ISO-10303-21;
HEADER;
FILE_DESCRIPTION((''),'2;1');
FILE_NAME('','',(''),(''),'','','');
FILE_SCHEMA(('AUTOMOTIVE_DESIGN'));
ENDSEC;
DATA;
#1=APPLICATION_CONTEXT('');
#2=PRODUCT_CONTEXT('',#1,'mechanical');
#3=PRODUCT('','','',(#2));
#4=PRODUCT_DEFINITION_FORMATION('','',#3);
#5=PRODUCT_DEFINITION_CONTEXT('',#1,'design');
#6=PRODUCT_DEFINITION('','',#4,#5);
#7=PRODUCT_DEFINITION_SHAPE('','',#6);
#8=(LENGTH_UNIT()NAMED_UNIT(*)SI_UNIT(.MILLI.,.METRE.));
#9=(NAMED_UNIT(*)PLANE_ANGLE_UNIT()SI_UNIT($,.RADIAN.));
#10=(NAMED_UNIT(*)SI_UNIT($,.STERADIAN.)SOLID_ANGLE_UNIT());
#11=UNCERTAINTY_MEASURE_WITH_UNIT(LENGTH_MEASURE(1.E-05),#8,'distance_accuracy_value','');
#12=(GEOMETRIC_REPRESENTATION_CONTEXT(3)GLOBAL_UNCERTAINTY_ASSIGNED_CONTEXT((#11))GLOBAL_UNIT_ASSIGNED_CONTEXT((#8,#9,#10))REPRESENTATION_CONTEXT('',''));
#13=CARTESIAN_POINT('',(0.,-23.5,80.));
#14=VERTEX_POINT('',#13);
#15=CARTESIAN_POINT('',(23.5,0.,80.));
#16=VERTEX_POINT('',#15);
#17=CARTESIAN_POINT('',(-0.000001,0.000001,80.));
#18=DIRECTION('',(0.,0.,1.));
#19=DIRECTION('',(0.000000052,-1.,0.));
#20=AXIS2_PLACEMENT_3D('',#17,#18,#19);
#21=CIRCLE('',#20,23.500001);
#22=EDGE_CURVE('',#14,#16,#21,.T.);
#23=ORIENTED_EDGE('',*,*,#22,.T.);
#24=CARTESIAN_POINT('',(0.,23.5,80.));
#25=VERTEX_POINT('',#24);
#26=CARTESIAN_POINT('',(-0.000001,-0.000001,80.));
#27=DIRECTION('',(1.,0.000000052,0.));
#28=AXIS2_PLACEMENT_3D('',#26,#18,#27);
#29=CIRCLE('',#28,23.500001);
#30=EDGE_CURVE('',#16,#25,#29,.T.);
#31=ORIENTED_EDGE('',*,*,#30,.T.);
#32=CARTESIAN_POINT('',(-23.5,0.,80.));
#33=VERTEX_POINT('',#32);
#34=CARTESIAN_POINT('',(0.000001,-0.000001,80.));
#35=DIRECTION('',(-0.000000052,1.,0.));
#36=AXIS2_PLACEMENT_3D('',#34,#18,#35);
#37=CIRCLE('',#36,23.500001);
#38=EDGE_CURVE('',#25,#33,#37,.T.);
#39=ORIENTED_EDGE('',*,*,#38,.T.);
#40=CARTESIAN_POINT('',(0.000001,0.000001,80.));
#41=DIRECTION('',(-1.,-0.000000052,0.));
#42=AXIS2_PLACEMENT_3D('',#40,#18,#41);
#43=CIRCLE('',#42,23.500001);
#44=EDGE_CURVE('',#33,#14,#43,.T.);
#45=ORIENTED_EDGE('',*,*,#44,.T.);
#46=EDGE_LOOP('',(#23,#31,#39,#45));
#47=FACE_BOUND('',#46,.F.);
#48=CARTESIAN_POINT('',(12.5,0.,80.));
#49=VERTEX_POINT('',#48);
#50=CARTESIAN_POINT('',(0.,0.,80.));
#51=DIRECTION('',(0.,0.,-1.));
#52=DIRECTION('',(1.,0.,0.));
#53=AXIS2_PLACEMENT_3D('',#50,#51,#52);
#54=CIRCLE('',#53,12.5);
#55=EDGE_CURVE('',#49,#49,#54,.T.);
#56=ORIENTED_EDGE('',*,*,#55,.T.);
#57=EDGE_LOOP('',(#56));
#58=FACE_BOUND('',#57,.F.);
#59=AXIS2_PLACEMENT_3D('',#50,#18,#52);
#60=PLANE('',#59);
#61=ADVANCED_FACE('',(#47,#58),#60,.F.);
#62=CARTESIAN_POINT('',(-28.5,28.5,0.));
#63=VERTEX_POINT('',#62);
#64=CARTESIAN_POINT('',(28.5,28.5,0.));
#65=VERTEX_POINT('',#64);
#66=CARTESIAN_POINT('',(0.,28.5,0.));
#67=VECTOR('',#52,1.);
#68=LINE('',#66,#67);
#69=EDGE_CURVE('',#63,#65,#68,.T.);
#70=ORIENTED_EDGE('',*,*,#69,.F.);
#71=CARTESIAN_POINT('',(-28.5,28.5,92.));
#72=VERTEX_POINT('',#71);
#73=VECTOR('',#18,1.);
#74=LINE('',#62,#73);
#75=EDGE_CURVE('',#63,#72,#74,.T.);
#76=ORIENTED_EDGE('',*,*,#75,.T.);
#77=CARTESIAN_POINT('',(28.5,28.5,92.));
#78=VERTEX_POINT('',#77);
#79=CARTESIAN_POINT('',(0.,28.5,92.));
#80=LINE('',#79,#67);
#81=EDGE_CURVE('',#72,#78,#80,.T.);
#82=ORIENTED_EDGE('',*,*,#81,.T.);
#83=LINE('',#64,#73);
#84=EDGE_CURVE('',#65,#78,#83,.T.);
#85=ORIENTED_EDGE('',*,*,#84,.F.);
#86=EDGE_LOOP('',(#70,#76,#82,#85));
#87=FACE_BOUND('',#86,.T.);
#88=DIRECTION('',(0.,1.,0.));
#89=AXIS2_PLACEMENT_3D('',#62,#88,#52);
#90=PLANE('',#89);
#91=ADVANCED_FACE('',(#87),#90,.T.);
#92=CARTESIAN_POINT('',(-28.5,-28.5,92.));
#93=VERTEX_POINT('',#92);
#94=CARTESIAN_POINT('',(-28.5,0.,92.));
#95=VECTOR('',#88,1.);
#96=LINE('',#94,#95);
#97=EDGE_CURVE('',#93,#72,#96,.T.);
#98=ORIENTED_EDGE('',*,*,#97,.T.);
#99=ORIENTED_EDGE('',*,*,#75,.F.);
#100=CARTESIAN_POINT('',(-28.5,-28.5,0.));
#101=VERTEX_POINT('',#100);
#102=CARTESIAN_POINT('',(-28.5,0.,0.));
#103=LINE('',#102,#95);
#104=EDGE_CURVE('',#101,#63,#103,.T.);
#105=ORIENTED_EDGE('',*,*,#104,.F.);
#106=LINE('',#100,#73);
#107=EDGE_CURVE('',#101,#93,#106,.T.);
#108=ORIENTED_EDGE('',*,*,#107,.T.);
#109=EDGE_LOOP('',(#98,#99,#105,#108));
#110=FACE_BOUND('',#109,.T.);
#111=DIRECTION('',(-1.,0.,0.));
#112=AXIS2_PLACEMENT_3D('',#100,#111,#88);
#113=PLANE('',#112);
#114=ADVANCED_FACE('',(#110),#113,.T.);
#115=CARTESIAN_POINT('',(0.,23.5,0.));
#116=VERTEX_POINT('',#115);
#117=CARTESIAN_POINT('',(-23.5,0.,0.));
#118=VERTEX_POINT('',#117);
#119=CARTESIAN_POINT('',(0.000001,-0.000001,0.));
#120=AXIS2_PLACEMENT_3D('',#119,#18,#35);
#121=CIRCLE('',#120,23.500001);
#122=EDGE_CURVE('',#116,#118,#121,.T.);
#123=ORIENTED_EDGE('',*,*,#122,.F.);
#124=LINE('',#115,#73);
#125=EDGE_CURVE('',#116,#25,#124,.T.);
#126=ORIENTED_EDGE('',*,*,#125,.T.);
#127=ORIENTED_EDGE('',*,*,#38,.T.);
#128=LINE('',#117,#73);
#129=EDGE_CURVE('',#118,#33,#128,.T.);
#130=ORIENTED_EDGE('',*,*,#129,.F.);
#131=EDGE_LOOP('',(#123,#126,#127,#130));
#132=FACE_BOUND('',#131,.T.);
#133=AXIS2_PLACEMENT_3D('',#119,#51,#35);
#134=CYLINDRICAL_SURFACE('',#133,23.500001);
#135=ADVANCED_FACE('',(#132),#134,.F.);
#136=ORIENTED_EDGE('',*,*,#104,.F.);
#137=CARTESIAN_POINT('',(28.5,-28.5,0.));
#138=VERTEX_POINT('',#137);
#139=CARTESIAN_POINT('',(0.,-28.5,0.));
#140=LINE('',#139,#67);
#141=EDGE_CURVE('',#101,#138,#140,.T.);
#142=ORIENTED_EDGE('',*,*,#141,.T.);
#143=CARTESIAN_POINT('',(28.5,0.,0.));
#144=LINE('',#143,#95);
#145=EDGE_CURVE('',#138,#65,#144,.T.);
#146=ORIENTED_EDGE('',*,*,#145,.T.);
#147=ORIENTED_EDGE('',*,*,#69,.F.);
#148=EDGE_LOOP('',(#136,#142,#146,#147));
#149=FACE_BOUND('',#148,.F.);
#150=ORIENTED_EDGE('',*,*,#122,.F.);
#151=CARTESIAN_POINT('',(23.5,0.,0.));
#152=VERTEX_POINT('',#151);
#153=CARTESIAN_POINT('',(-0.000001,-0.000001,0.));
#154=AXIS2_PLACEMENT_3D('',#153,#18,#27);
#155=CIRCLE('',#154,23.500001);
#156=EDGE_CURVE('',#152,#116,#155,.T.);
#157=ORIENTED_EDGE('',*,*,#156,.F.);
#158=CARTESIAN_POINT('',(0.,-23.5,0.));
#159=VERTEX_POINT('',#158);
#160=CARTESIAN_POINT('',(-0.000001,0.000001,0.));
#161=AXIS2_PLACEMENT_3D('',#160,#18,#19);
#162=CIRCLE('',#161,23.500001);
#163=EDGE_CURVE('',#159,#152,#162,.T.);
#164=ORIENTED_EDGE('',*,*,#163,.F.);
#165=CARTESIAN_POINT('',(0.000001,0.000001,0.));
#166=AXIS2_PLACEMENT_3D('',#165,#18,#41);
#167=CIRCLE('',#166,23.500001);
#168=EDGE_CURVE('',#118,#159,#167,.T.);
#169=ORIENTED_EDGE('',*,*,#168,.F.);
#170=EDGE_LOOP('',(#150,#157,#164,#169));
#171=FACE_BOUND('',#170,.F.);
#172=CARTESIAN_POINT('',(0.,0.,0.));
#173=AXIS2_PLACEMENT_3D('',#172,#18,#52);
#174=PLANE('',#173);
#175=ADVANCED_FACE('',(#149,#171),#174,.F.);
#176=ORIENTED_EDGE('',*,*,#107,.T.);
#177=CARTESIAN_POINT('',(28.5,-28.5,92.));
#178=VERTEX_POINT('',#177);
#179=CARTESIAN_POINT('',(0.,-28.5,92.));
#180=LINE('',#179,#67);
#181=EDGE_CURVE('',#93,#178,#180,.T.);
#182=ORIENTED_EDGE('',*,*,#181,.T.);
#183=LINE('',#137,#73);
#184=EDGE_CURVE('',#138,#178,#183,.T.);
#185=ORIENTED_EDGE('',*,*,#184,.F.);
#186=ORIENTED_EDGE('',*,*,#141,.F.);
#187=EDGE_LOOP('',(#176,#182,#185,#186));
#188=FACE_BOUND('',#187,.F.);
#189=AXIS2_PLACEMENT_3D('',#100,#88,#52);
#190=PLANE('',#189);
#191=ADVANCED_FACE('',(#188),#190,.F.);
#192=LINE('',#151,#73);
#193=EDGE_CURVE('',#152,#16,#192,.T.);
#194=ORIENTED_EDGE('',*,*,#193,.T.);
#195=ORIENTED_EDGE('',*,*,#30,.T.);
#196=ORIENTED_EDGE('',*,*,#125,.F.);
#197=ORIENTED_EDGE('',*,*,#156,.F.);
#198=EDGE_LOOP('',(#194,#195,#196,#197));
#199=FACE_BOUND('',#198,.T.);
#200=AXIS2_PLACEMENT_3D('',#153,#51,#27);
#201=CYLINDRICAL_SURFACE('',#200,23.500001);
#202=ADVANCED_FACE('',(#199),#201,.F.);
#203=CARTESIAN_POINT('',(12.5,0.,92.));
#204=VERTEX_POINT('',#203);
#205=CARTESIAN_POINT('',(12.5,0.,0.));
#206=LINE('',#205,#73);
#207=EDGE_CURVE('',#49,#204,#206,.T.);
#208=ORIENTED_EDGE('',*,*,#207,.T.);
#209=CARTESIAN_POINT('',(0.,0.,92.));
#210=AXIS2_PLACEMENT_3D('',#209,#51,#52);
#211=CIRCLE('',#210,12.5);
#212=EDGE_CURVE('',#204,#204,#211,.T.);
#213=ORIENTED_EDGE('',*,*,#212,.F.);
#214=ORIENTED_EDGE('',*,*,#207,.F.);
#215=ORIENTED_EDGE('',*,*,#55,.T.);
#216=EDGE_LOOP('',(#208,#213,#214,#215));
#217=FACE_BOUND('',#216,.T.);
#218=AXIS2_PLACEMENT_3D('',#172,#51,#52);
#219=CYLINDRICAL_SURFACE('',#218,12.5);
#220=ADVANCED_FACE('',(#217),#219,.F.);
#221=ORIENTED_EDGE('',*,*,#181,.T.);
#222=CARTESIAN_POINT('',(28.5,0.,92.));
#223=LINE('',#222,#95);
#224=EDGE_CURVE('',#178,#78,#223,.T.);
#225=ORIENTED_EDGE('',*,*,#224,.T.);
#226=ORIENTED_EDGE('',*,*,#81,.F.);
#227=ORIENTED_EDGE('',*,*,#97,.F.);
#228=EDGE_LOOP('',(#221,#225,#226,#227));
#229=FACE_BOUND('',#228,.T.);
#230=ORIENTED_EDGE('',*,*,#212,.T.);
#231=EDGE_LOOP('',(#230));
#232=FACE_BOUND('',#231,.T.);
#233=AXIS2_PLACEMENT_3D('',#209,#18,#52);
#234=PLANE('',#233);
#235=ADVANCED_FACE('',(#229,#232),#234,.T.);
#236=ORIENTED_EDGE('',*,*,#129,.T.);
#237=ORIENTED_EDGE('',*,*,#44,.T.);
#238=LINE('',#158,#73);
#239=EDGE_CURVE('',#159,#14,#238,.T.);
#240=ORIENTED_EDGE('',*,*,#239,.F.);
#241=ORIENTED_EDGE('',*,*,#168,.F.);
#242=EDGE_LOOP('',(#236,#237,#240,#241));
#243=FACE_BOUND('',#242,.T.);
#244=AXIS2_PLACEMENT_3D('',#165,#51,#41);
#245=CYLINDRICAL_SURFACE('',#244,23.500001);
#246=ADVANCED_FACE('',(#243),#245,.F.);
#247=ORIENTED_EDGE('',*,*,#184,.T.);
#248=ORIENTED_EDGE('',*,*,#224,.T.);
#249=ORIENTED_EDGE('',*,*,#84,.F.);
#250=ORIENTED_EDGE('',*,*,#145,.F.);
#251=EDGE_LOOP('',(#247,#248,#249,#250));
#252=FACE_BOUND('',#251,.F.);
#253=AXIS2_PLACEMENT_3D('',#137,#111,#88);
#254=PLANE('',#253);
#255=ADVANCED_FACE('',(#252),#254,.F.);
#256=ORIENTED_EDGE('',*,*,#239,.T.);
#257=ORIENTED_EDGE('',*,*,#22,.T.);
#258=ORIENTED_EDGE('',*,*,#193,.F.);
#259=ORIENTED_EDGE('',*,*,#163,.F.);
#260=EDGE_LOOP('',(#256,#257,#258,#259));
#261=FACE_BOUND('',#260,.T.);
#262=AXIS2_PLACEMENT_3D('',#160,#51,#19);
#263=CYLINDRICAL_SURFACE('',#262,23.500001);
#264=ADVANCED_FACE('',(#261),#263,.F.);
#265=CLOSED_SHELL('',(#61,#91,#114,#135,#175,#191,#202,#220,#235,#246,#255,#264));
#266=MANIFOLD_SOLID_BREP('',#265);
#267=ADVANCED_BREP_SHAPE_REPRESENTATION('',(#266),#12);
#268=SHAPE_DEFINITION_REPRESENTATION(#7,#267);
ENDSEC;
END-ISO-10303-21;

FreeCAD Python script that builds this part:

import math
import FreeCAD as App
import Part
import Sketcher
from FreeCAD import Vector
Q = App.Units.Quantity

doc = App.newDocument("Part")
body = doc.addObject("PartDesign::Body", "Body")

# Sketch on XY plane
sketch1 = body.newObject("Sketcher::SketchObject", "Sketch")
sketch1.AttachmentSupport = (doc.getObject("XY_Plane"), [""])
sketch1.MapMode = "FlatFace"
sketch1.addGeometry([
    Part.LineSegment(Vector(-28.5, 28.5, 0), Vector(-28.5, -28.5, 0)),
    Part.LineSegment(Vector(-28.5, -28.5, 0), Vector(28.5, -28.5, 0)),
    Part.LineSegment(Vector(28.5, -28.5, 0), Vector(28.5, 28.5, 0)),
    Part.LineSegment(Vector(28.5, 28.5, 0), Vector(-28.5, 28.5, 0)),
], False)
sketch1.addConstraint([
    Sketcher.Constraint("Coincident", 0, 2, 1, 1),
    Sketcher.Constraint("Coincident", 1, 2, 2, 1),
    Sketcher.Constraint("Coincident", 2, 2, 3, 1),
    Sketcher.Constraint("Coincident", 3, 2, 0, 1),
    Sketcher.Constraint("Vertical", 0),
    Sketcher.Constraint("Horizontal", 1),
    Sketcher.Constraint("Vertical", 2),
    Sketcher.Constraint("Horizontal", 3),
    Sketcher.Constraint("Symmetric", 0, 2, 2, 2, -1, 1),
    Sketcher.Constraint("Equal", 3, 0),
    Sketcher.Constraint("DistanceX", 1, 1, 1, 2, Q("57 mm")),
])
pad1 = body.newObject("PartDesign::Pad", "Pad")
pad1.Profile = sketch1
pad1.Length = 92

# Sketch on XY plane
sketch2 = body.newObject("Sketcher::SketchObject", "Sketch001")
sketch2.AttachmentSupport = (doc.getObject("XY_Plane"), [""])
sketch2.MapMode = "FlatFace"
sketch2.addGeometry([
    Part.ArcOfCircle(Part.Circle(Vector(-0.000001, -0.000001, 0), Vector(0, 0, 1), 23.500001), math.radians(0.000003), math.radians(89.999997)),
    Part.ArcOfCircle(Part.Circle(Vector(0.000001, -0.000001, 0), Vector(0, 0, 1), 23.500001), math.radians(90.000003), math.radians(179.999997)),
    Part.ArcOfCircle(Part.Circle(Vector(0.000001, 0.000001, 0), Vector(0, 0, 1), 23.500001), math.radians(-179.999997), math.radians(-90.000003)),
    Part.ArcOfCircle(Part.Circle(Vector(-0.000001, 0.000001, 0), Vector(0, 0, 1), 23.500001), math.radians(-89.999997), math.radians(-0.000003)),
], False)
sketch2.addConstraint([
    Sketcher.Constraint("Tangent", 0, 2, 1, 1),
    Sketcher.Constraint("Tangent", 1, 2, 2, 1),
    Sketcher.Constraint("Tangent", 2, 2, 3, 1),
    Sketcher.Constraint("Tangent", 3, 2, 0, 1),
    Sketcher.Constraint("Coincident", 0, 3, -1, 1),
    Sketcher.Constraint("Equal", 0, 1),
    Sketcher.Constraint("PointOnObject", 0, 2, -2),
    Sketcher.Constraint("PointOnObject", 1, 2, -1),
    Sketcher.Constraint("PointOnObject", 2, 2, -2),
    Sketcher.Constraint("PointOnObject", 3, 2, -1),
    Sketcher.Constraint("Radius", 0, Q("23.500001 mm")),
])
pocket1 = body.newObject("PartDesign::Pocket", "Pocket")
pocket1.Profile = sketch2
pocket1.Length = 80
pocket1.Reversed = True

# Sketch on XY plane
sketch3 = body.newObject("Sketcher::SketchObject", "Sketch002")
sketch3.AttachmentSupport = (doc.getObject("XY_Plane"), [""])
sketch3.MapMode = "FlatFace"
sketch3.addGeometry(Part.Circle(Vector(0, 0, 0), Vector(0, 0, 1), 12.5), False)
sketch3.addConstraint([
    Sketcher.Constraint("Coincident", 0, 3, -1, 1),
    Sketcher.Constraint("Diameter", 0, Q("25 mm")),
])
pocket2 = body.newObject("PartDesign::Pocket", "Pocket001")
pocket2.Profile = sketch3
pocket2.Type = "ThroughAll"
pocket2.Reversed = True

doc.recompute()
